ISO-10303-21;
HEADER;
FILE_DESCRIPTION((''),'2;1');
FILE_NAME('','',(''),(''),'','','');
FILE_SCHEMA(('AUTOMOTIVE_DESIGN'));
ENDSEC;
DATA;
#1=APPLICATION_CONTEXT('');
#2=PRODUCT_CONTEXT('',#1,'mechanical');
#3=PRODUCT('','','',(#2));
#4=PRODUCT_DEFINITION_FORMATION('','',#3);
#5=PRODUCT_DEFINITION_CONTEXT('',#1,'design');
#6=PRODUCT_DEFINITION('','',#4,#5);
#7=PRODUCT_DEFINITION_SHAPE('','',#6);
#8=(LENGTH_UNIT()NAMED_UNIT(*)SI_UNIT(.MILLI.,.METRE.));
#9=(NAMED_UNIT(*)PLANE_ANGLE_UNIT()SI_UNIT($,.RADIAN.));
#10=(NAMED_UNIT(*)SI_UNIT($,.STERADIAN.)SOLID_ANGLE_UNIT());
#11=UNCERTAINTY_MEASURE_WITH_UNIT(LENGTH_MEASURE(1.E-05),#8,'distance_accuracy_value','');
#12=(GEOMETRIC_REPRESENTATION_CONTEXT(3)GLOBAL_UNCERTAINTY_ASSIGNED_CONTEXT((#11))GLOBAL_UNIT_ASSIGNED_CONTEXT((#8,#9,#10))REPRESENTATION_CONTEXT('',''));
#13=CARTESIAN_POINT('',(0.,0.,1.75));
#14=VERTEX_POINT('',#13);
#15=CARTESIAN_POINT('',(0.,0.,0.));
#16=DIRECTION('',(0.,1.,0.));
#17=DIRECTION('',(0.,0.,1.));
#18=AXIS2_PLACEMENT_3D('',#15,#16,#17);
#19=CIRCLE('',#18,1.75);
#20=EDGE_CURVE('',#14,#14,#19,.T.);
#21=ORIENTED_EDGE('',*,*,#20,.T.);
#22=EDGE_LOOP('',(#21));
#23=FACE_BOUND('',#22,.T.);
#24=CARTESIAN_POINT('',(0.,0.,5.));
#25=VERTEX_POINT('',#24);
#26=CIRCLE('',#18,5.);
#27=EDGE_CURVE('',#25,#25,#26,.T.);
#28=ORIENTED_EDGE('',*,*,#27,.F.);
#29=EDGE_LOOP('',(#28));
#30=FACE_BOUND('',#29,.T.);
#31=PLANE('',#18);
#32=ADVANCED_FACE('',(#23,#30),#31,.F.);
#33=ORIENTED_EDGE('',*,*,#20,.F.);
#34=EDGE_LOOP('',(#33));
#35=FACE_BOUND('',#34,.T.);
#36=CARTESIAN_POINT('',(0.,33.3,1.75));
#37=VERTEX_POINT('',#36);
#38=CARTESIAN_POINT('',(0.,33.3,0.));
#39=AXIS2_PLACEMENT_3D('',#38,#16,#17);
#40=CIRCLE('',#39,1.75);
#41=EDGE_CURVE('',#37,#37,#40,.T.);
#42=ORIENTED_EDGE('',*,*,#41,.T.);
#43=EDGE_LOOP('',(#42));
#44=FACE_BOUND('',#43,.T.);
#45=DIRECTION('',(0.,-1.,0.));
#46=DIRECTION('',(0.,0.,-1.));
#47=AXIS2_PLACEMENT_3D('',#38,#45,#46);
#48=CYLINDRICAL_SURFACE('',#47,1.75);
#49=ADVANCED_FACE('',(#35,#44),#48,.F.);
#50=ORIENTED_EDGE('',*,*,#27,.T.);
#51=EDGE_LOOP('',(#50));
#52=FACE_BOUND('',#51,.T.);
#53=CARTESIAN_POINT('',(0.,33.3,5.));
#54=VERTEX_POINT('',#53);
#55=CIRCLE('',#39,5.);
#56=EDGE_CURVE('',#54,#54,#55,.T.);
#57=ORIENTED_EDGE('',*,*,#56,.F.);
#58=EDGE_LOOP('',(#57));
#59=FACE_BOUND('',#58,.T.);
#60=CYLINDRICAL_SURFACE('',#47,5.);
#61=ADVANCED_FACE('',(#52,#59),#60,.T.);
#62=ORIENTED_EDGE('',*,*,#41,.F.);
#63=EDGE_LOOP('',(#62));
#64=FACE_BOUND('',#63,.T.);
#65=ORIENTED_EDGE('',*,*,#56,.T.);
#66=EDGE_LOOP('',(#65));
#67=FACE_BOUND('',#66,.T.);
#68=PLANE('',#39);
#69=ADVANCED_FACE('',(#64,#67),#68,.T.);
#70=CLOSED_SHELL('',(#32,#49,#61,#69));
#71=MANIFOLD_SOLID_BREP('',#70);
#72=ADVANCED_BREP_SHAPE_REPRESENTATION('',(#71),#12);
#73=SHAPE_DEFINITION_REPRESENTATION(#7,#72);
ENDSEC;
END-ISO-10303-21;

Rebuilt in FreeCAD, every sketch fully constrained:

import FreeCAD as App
import Part
import Sketcher

V = App.Vector
Q = App.Units.Quantity

doc = App.newDocument("Part")
body = doc.addObject("PartDesign::Body", "Body")

sketch1 = body.newObject("Sketcher::SketchObject", "Sketch")
sketch1.AttachmentSupport = (doc.getObject("XZ_Plane"), [""])
sketch1.MapMode = "FlatFace"
sketch1.addGeometry(Part.Circle(V(0, 0, 0), V(0, 0, 1), 5), False)
sketch1.addGeometry(Part.Circle(V(0, 0, 0), V(0, 0, 1), 1.8), False)
sketch1.addConstraint(Sketcher.Constraint("Coincident", 0, 3, -1, 1))
sketch1.addConstraint(Sketcher.Constraint("Coincident", 1, 3, -1, 1))
sketch1.addConstraint(Sketcher.Constraint("Diameter", 0, Q("10 mm")))
sketch1.addConstraint(Sketcher.Constraint("Diameter", 1, Q("3.5 mm")))
pad1 = body.newObject("PartDesign::Pad", "Pad")
pad1.Profile = sketch1
pad1.Length = 33.3
pad1.Reversed = True

doc.recompute()
